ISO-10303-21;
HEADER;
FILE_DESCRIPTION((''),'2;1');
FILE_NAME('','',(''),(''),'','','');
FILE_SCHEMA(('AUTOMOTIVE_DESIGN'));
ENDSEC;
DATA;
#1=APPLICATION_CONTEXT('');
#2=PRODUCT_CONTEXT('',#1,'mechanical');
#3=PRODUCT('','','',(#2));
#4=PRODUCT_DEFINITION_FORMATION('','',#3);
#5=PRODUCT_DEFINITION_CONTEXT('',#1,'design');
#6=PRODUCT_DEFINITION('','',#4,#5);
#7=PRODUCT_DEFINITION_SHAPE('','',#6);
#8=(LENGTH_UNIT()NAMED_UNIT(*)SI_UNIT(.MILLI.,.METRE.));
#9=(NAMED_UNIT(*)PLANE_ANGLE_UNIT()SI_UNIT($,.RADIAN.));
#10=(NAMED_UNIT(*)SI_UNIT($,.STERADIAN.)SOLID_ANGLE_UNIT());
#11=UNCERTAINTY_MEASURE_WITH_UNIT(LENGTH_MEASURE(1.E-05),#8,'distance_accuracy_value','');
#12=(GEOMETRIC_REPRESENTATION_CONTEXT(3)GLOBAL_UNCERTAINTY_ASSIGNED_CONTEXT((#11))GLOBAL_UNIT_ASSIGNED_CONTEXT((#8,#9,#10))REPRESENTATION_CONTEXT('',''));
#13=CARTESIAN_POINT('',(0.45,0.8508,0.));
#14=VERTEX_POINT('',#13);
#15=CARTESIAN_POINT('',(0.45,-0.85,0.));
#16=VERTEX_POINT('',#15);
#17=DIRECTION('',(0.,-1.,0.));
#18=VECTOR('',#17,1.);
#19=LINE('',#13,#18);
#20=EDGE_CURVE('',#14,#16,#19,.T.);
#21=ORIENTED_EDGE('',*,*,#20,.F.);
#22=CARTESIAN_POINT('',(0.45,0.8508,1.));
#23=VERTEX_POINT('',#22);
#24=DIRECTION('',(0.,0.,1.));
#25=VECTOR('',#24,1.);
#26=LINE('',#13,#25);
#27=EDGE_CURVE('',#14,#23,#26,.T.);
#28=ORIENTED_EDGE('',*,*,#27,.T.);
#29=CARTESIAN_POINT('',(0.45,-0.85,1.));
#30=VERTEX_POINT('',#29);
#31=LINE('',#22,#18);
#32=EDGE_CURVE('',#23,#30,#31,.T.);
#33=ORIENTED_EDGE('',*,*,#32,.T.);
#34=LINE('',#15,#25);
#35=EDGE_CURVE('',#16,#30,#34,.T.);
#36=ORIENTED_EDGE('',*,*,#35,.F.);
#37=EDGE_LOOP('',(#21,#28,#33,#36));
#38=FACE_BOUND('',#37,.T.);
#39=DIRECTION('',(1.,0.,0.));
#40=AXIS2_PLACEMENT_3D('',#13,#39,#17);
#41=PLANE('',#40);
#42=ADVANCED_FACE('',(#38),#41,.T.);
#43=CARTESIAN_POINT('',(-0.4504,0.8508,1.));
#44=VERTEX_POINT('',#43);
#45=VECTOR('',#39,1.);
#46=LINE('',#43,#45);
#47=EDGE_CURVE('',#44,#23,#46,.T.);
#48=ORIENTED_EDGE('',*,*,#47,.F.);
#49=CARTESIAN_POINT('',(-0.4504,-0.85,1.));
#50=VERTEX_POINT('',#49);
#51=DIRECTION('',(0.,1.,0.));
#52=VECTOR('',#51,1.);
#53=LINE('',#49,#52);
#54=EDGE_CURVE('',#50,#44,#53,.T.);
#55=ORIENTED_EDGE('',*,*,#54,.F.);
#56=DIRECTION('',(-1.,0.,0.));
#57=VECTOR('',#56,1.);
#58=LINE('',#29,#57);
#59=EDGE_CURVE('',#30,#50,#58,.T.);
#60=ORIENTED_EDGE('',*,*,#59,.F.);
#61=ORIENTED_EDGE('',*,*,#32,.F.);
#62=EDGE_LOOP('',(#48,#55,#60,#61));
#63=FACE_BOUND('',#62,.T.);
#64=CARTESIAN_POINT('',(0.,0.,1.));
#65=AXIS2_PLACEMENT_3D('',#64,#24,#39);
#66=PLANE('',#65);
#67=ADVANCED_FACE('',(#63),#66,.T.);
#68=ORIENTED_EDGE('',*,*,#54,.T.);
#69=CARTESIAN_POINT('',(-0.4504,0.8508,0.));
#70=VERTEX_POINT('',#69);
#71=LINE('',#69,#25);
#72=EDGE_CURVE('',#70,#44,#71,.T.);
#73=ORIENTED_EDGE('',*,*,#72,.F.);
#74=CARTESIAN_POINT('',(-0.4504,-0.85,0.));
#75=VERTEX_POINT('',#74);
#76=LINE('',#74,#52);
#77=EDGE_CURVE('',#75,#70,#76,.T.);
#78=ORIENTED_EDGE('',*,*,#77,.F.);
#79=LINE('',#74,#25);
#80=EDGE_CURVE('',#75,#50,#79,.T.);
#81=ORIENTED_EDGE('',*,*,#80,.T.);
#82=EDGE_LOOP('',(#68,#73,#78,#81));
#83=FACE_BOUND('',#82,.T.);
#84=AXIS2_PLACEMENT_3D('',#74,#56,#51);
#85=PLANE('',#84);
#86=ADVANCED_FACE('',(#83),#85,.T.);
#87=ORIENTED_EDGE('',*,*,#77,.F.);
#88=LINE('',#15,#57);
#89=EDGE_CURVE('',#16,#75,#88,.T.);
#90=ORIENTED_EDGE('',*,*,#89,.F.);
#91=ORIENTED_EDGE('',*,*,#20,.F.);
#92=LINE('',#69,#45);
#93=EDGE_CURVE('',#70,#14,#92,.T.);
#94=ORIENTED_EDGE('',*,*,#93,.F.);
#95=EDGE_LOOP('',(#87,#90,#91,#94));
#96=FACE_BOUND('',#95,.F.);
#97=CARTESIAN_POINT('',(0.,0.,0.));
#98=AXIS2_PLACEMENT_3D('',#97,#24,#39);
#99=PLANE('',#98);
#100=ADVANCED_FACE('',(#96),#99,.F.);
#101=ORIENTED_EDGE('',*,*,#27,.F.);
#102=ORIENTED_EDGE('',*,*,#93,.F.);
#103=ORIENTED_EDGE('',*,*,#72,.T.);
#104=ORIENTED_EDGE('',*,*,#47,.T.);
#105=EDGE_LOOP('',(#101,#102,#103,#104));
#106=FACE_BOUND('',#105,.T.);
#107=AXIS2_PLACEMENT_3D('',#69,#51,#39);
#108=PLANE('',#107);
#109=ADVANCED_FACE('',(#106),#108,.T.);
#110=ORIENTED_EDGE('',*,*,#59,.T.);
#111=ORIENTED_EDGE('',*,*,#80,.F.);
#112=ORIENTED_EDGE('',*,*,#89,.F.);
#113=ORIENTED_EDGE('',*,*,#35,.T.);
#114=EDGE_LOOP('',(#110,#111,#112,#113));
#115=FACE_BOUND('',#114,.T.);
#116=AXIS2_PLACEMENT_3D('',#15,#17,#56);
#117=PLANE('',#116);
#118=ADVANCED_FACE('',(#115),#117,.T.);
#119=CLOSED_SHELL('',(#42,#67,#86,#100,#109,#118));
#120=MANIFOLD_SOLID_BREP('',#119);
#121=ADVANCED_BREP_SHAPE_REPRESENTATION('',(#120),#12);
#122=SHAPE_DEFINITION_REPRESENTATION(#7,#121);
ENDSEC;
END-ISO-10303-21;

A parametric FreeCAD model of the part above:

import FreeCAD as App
import Part
import Sketcher
from FreeCAD import Vector


def add_polygon(sketch, points):
    """Adds a closed chain of lines whose ends are joined by coincident constraints."""
    first, n = sketch.GeometryCount, len(points)
    for a, b in zip(points, points[1:] + points[:1]):
        sketch.addGeometry(Part.LineSegment(App.Vector(*a, 0), App.Vector(*b, 0)), False)
    for i in range(n):
        sketch.addConstraint(Sketcher.Constraint("Coincident", first + i, 2, first + (i + 1) % n, 1))

doc = App.newDocument("Part")
params = doc.addObject("Spreadsheet::Sheet", "Params")
for row, (alias, value) in enumerate([
    ("pad1_length", "1 mm"),
], start=1):
    params.set(f"A{row}", alias)
    params.set(f"B{row}", "=" + value)
    params.setAlias(f"B{row}", alias)

body = doc.addObject("PartDesign::Body", "Body")

# Sketch on XY plane
sketch1 = body.newObject("Sketcher::SketchObject", "Sketch")
sketch1.AttachmentSupport = (doc.getObject("XY_Plane"), [""])
sketch1.MapMode = "FlatFace"
add_polygon(sketch1, [(0.45, 0.8508), (-0.4504, 0.8508), (-0.4504, -0.85), (0.45, -0.85)])  # lines 0-3
sketch1.addConstraint([
    Sketcher.Constraint("Horizontal", 0),
    Sketcher.Constraint("Vertical", 1),
    Sketcher.Constraint("Horizontal", 2),
    Sketcher.Constraint("Vertical", 3),
    Sketcher.Constraint("DistanceY", 1, 2, -1, 1, 0.85),
    Sketcher.Constraint("DistanceX", -1, 1, 2, 2, 0.45),
    Sketcher.Constraint("DistanceX", 0, 2, 0, 1, 0.9004),
    Sketcher.Constraint("DistanceY", 1, 2, 1, 1, 1.7008),
])
pad1 = body.newObject("PartDesign::Pad", "Pad")
pad1.Profile = sketch1
pad1.setExpression("Length", "Params.pad1_length")

doc.recompute()
